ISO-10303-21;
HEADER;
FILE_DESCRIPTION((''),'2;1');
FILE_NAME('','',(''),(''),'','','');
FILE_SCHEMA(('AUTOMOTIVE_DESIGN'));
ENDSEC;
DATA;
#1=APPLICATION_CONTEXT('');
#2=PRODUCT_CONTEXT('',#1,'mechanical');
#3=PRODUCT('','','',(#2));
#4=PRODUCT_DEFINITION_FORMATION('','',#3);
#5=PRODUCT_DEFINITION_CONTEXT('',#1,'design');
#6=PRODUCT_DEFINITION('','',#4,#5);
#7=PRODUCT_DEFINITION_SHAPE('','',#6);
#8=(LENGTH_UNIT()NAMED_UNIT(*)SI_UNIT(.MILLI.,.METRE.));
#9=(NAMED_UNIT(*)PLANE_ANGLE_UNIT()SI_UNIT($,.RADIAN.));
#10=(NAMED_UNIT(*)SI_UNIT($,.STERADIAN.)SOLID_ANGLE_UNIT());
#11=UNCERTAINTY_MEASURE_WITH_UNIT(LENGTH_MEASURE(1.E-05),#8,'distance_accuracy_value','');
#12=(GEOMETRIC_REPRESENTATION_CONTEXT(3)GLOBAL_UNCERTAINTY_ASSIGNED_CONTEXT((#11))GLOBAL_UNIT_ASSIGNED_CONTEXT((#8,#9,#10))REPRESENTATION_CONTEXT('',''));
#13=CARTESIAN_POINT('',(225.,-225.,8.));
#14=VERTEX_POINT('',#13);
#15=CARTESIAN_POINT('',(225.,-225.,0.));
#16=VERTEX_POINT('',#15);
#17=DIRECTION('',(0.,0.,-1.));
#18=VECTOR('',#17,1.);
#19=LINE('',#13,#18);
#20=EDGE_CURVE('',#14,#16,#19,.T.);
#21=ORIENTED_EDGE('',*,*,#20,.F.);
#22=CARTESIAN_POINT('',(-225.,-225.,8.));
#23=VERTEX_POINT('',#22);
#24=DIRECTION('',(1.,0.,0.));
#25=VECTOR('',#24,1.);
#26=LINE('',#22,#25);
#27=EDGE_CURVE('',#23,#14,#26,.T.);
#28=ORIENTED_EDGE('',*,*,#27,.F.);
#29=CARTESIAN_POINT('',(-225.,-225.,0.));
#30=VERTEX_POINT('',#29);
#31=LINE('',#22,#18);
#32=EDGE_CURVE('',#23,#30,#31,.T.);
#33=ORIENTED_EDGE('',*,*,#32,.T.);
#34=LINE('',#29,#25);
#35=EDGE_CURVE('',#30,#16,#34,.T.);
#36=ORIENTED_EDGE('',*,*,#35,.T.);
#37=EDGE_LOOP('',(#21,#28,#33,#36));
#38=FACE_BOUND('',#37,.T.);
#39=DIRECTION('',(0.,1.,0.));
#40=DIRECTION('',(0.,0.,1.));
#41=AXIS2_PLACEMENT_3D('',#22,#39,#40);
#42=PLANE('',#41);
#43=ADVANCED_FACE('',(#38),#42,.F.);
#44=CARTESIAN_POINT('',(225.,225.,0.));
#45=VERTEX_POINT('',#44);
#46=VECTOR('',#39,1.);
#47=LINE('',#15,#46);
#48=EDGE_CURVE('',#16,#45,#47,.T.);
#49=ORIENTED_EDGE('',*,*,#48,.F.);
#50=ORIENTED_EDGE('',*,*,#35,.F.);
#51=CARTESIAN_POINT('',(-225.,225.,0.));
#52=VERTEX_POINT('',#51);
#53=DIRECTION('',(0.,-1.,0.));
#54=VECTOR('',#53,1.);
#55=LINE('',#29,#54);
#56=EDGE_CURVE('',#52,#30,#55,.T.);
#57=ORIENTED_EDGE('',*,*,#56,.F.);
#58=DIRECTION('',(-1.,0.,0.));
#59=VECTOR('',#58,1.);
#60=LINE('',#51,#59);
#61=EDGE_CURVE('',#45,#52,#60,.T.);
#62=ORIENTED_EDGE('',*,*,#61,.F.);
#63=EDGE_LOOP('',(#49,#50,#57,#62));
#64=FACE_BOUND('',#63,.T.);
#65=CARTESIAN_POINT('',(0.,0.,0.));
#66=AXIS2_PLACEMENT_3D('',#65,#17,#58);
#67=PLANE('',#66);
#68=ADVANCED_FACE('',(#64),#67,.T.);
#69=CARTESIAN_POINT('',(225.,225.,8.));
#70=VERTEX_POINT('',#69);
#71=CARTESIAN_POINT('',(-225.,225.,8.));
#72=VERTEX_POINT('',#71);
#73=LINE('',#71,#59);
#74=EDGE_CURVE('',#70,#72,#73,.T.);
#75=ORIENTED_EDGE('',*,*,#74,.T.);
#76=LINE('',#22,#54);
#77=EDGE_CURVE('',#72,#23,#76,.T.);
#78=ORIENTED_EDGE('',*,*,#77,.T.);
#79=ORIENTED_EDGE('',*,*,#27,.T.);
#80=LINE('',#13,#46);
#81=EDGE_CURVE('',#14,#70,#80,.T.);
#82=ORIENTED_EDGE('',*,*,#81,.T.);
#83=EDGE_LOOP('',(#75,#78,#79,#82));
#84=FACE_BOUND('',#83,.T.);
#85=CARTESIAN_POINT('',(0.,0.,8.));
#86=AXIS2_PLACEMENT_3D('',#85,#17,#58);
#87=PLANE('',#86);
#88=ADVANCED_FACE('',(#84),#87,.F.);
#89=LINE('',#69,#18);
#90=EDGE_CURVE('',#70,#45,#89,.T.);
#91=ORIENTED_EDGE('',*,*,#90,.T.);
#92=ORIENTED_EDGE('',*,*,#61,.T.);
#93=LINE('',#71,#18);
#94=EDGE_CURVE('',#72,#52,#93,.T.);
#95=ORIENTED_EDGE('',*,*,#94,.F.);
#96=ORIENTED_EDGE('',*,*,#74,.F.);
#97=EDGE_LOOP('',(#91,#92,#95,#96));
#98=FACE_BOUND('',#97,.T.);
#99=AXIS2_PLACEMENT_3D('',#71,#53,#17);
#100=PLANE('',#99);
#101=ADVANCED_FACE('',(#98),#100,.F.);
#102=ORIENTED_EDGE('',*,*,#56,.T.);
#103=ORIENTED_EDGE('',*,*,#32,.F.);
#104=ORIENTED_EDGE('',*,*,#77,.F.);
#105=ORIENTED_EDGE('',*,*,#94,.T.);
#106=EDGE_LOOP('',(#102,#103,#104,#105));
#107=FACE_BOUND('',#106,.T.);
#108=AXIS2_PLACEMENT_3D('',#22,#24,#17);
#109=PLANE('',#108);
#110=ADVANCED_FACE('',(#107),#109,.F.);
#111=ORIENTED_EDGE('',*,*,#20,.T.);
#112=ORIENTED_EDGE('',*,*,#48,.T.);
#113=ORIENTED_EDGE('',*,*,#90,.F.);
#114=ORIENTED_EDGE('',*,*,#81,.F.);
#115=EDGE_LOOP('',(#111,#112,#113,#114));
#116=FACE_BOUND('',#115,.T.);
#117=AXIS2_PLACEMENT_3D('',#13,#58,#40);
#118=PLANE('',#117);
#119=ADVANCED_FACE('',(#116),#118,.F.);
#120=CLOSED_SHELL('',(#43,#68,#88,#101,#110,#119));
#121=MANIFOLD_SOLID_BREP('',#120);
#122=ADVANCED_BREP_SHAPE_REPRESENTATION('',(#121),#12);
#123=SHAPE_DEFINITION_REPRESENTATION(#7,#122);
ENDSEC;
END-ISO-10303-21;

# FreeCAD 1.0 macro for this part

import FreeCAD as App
import Part
import Sketcher
Q = App.Units.Quantity


def add_polygon(sketch, points):
    """Adds a closed chain of lines whose ends are joined by coincident constraints."""
    first, n = sketch.GeometryCount, len(points)
    for a, b in zip(points, points[1:] + points[:1]):
        sketch.addGeometry(Part.LineSegment(App.Vector(*a, 0), App.Vector(*b, 0)), False)
    for i in range(n):
        sketch.addConstraint(Sketcher.Constraint("Coincident", first + i, 2, first + (i + 1) % n, 1))

doc = App.newDocument("Part")
body = doc.addObject("PartDesign::Body", "Body")

sketch1 = body.newObject("Sketcher::SketchObject", "Sketch")
sketch1.AttachmentSupport = (doc.getObject("XY_Plane"), [""])
sketch1.MapMode = "FlatFace"
add_polygon(sketch1, [(-225, 225), (-225, -225), (225, -225), (225, 225)])
sketch1.addConstraint([
    Sketcher.Constraint("Vertical", 0),
    Sketcher.Constraint("Horizontal", 1),
    Sketcher.Constraint("Vertical", 2),
    Sketcher.Constraint("Horizontal", 3),
    Sketcher.Constraint("Symmetric", 0, 2, 2, 2, -1, 1),
    Sketcher.Constraint("Equal", 3, 0),
    Sketcher.Constraint("DistanceX", 1, 1, 1, 2, Q("450 mm")),
])
pad1 = body.newObject("PartDesign::Pad", "Pad")
pad1.Profile = sketch1
pad1.Length = 8

doc.recompute()
